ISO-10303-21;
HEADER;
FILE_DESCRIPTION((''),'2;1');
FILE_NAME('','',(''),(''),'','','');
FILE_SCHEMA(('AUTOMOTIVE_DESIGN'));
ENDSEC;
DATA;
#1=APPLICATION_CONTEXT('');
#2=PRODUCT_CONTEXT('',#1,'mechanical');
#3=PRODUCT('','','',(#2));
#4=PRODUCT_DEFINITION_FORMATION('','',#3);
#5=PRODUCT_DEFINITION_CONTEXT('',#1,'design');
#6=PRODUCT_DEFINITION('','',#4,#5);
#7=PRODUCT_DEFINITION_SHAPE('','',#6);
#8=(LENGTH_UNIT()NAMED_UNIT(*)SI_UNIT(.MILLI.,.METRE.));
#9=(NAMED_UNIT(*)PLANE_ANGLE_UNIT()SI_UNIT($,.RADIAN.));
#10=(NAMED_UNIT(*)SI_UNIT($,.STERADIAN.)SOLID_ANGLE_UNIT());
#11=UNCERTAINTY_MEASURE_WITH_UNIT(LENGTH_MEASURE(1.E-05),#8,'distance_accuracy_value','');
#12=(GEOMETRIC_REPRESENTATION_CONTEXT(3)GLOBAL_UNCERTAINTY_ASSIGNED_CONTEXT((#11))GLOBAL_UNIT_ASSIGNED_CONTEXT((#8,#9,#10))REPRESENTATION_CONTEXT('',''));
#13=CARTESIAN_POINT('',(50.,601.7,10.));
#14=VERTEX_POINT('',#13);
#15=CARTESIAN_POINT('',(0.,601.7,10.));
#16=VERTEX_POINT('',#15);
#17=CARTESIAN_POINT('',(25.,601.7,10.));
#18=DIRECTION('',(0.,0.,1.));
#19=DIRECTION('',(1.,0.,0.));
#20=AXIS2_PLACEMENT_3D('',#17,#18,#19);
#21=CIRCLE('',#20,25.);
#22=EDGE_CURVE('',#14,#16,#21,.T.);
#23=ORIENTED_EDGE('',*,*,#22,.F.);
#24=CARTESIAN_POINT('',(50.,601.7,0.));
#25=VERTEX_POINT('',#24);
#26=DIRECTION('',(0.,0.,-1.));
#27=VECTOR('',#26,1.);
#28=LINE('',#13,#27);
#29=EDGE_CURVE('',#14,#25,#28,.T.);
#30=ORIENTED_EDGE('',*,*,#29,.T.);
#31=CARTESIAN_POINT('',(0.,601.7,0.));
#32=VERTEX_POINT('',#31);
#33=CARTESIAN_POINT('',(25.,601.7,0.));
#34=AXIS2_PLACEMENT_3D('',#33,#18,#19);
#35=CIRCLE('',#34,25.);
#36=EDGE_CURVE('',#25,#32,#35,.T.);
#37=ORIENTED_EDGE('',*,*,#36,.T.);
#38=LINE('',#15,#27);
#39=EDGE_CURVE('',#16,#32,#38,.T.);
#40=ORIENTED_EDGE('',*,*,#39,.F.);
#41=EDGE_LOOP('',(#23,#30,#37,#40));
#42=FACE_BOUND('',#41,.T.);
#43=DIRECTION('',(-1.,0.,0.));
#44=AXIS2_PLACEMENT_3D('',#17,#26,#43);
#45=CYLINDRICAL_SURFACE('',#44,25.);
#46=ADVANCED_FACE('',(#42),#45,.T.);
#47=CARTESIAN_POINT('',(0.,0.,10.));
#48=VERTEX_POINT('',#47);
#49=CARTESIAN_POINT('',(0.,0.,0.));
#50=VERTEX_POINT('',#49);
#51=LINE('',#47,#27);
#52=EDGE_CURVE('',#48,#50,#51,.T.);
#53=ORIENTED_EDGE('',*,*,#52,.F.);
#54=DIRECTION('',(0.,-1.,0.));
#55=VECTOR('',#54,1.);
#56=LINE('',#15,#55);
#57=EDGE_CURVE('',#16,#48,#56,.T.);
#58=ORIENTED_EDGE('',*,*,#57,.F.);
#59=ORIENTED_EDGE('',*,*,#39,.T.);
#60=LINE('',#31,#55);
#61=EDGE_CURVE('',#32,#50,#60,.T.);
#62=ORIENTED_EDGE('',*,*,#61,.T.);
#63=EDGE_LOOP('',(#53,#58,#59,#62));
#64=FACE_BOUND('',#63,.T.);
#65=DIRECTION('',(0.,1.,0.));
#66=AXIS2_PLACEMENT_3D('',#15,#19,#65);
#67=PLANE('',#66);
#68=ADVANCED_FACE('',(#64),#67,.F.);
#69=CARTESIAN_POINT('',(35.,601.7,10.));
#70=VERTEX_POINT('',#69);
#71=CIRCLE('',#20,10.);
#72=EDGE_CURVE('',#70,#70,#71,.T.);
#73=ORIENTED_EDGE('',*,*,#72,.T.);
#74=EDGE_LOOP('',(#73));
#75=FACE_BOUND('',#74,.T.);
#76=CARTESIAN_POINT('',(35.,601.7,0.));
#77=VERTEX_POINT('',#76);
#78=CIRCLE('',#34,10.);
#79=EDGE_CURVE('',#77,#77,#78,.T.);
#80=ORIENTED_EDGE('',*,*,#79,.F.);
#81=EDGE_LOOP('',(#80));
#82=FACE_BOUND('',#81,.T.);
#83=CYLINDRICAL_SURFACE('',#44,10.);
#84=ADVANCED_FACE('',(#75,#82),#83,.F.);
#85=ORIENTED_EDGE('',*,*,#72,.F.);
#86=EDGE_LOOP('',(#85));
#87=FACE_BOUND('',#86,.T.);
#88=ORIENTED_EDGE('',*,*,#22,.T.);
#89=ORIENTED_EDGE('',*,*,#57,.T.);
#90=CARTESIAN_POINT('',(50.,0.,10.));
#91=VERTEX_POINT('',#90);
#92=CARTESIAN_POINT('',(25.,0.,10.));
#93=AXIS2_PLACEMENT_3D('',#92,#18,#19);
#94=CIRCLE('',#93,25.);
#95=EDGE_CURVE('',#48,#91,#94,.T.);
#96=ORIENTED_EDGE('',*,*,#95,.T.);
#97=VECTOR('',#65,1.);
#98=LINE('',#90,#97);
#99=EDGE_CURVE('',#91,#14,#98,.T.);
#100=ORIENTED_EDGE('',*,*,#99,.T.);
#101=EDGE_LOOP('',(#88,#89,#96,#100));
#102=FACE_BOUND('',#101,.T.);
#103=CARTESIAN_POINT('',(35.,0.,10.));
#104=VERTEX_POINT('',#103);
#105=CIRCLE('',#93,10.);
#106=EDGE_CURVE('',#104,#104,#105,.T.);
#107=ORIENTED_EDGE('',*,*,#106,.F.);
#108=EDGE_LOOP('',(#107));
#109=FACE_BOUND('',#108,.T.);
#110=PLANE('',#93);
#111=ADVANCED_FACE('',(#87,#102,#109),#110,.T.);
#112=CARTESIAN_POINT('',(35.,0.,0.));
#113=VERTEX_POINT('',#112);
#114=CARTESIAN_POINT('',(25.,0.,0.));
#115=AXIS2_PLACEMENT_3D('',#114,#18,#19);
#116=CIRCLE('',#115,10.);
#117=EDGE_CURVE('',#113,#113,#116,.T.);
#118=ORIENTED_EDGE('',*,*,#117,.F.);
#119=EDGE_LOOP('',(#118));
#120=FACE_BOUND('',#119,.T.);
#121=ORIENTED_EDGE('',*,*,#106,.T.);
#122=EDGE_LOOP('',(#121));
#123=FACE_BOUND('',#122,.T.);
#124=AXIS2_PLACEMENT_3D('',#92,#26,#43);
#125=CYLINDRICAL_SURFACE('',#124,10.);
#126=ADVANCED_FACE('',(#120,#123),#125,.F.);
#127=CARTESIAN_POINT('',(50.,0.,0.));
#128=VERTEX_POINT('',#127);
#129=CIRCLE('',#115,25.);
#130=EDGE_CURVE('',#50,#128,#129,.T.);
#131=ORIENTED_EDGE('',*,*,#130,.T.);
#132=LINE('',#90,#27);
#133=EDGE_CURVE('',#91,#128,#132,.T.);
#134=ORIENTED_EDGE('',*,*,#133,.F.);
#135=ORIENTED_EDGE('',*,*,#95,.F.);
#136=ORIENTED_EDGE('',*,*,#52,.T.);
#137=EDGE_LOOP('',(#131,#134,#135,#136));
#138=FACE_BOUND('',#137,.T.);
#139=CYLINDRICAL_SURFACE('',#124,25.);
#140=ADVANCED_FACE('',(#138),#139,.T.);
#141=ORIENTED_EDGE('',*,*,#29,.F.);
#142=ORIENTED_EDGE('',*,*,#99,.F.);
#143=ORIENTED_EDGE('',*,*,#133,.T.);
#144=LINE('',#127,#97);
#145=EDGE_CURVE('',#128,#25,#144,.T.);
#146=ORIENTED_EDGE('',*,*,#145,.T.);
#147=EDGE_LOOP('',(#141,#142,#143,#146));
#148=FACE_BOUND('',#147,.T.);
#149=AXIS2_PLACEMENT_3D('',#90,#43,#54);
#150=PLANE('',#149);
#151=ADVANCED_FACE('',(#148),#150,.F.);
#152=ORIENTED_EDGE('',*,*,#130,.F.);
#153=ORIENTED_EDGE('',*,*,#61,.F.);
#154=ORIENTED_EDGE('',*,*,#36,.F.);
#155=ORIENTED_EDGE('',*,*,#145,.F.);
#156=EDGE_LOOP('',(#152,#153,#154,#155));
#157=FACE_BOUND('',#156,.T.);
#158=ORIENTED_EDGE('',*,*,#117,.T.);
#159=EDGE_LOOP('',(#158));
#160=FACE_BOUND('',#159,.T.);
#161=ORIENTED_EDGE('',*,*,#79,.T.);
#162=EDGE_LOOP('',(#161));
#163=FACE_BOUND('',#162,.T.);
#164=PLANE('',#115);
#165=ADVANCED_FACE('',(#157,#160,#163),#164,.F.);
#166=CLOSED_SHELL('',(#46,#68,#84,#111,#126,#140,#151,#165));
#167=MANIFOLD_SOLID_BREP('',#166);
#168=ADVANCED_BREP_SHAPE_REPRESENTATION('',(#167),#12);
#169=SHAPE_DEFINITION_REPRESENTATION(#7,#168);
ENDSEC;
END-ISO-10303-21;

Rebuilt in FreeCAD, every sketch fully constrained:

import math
import FreeCAD as App
import Part
import Sketcher
Q = App.Units.Quantity

doc = App.newDocument("Part")
body = doc.addObject("PartDesign::Body", "Body")

# Sketch on XY plane
sketch1 = body.newObject("Sketcher::SketchObject", "Sketch")
sketch1.AttachmentSupport = (doc.getObject("XY_Plane"), [""])
sketch1.MapMode = "FlatFace"
sketch1.addGeometry(Part.LineSegment(App.Vector(50, 0, 0), App.Vector(50, 602, 0)), False)
sketch1.addGeometry(Part.ArcOfCircle(Part.Circle(App.Vector(25, 602, 0), App.Vector(0, 0, 1), 25), math.radians(0), math.radians(180)), False)
sketch1.addGeometry(Part.LineSegment(App.Vector(0, 602, 0), App.Vector(0, 0, 0)), False)
sketch1.addGeometry(Part.ArcOfCircle(Part.Circle(App.Vector(25, 0, 0), App.Vector(0, 0, 1), 25), math.radians(180), math.radians(360)), False)
sketch1.addGeometry(Part.Circle(App.Vector(25, 0, 0), App.Vector(0, 0, 1), 10), False)
sketch1.addGeometry(Part.Circle(App.Vector(25, 602, 0), App.Vector(0, 0, 1), 10), False)
sketch1.addConstraint(Sketcher.Constraint("Tangent", 0, 2, 1, 1))
sketch1.addConstraint(Sketcher.Constraint("Tangent", 1, 2, 2, 1))
sketch1.addConstraint(Sketcher.Constraint("Tangent", 2, 2, 3, 1))
sketch1.addConstraint(Sketcher.Constraint("Tangent", 3, 2, 0, 1))
sketch1.addConstraint(Sketcher.Constraint("Vertical", 0))
sketch1.addConstraint(Sketcher.Constraint("Vertical", 2))
sketch1.addConstraint(Sketcher.Constraint("Coincident", 2, 2, -1, 1))
sketch1.addConstraint(Sketcher.Constraint("Coincident", 4, 3, 3, 3))
sketch1.addConstraint(Sketcher.Constraint("Coincident", 5, 3, 1, 3))
sketch1.addConstraint(Sketcher.Constraint("Equal", 4, 5))
sketch1.addConstraint(Sketcher.Constraint("Diameter", 4, Q("20 mm")))
sketch1.addConstraint(Sketcher.Constraint("Radius", 1, Q("25 mm")))
sketch1.addConstraint(Sketcher.Constraint("DistanceY", 0, 1, 0, 2, Q("601.7 mm")))
pad1 = body.newObject("PartDesign::Pad", "Pad")
pad1.Profile = sketch1
pad1.Length = 10

doc.recompute()
